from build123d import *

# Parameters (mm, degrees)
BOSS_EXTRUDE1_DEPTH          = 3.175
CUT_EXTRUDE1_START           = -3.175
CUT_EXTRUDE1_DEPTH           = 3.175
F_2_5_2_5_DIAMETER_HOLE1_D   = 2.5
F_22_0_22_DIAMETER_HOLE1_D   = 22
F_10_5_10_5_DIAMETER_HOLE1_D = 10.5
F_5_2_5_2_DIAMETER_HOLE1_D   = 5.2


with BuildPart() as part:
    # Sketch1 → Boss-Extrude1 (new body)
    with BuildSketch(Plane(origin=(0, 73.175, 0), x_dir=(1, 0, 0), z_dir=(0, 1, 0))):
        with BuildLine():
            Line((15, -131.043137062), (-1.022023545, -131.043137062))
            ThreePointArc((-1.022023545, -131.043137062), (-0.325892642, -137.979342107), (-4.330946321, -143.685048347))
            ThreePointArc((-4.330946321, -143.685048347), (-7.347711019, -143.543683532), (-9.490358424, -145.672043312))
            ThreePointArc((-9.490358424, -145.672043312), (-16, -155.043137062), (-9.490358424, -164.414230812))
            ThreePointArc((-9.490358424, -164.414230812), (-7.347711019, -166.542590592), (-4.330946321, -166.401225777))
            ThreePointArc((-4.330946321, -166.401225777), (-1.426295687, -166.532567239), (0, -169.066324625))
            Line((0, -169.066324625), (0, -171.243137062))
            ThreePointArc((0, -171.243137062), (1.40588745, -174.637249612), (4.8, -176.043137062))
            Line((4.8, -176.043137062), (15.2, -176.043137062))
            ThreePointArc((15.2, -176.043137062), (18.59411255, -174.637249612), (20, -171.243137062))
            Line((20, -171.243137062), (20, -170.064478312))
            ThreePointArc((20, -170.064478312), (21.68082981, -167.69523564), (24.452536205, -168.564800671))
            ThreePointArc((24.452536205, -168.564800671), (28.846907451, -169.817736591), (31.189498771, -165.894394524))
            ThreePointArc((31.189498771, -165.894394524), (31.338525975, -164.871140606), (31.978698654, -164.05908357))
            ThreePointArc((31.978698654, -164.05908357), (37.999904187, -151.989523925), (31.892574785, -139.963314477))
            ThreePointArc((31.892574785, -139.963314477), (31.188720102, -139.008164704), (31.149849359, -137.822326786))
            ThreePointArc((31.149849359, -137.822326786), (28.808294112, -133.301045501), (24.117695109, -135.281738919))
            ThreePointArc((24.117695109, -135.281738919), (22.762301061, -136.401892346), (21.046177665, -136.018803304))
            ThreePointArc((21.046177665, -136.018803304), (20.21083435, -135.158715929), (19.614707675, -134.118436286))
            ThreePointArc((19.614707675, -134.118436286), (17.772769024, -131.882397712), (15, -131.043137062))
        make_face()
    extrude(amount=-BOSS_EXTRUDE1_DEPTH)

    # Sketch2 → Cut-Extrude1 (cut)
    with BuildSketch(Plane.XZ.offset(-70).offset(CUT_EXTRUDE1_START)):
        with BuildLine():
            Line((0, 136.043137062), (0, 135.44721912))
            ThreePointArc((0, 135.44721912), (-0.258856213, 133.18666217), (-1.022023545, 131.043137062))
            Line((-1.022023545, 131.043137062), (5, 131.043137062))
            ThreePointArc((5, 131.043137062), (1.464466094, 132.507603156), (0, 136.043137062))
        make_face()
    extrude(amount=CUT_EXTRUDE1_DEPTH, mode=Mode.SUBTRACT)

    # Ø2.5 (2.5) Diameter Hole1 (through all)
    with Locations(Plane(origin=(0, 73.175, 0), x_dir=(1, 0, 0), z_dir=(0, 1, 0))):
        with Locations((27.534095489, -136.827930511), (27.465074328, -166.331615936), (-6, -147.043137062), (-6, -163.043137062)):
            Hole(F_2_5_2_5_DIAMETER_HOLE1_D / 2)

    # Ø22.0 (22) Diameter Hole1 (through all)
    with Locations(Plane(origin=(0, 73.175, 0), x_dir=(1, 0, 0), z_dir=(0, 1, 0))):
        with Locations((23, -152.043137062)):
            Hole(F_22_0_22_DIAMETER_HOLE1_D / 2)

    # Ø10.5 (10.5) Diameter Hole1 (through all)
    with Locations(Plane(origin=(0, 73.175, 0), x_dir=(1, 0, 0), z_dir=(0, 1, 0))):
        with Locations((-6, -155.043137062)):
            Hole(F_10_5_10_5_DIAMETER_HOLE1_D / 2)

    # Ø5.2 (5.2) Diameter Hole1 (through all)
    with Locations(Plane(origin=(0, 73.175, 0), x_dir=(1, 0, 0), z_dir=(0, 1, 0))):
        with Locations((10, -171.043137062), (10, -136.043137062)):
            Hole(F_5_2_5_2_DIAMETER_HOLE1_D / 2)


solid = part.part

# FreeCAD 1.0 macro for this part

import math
import FreeCAD as App
import Part
import Sketcher

doc = App.newDocument("Part")
body = doc.addObject("PartDesign::Body", "Body")

# Sketch on XZ plane
sketch1 = doc.addObject("Sketcher::SketchObject", "Sketch")
body.addObject(sketch1)
sketch1.AttachmentSupport = (doc.XZ_Plane, [""])
sketch1.MapMode = "FlatFace"
sketch1.AttachmentOffset = App.Placement(App.Vector(0, 0, -73.175), App.Rotation())
sketch1.addGeometry([
    Part.LineSegment(App.Vector(15, 131.043137, 0), App.Vector(-1.022024, 131.043137, 0)),  # 0
    Part.ArcOfCircle(Part.Circle(App.Vector(-10, 135.447219, 0), App.Vector(0, 0, 1), 10), math.radians(-26.129929), math.radians(55.465292)),  # 1
    Part.ArcOfCircle(Part.Circle(App.Vector(-6, 147.043137, 0), App.Vector(0, 0, 1), 3.75), math.radians(-158.553949), math.radians(-63.57148)),  # 2
    Part.ArcOfCircle(Part.Circle(App.Vector(-6, 155.043137, 0), App.Vector(0, 0, 1), 10), math.radians(110.428354), math.radians(249.571646)),  # 3
    Part.ArcOfCircle(Part.Circle(App.Vector(-6, 163.043137, 0), App.Vector(0, 0, 1), 3.75), math.radians(63.57148), math.radians(158.553949)),  # 4
    Part.ArcOfCircle(Part.Circle(App.Vector(-2.997009, 169.085071, 0), App.Vector(0, 0, 1), 2.997067), math.radians(-116.42852), math.radians(-0.358373)),  # 5
    Part.LineSegment(App.Vector(0, 169.066325, 0), App.Vector(0, 171.243137, 0)),  # 6
    Part.ArcOfCircle(Part.Circle(App.Vector(4.8, 171.243137, 0), App.Vector(0, 0, 1), 4.8), math.radians(90), math.radians(180)),  # 7
    Part.LineSegment(App.Vector(4.8, 176.043137, 0), App.Vector(15.2, 176.043137, 0)),  # 8
    Part.ArcOfCircle(Part.Circle(App.Vector(15.2, 171.243137, 0), App.Vector(0, 0, 1), 4.8), math.radians(0), math.radians(90)),  # 9
    Part.LineSegment(App.Vector(20, 171.243137, 0), App.Vector(20, 170.064478, 0)),  # 10
    Part.ArcOfCircle(Part.Circle(App.Vector(22.468968, 170.035214, 0), App.Vector(0, 0, 1), 2.469141), math.radians(179.320903), math.radians(323.45058)),  # 11
    Part.ArcOfCircle(Part.Circle(App.Vector(27.465074, 166.331616, 0), App.Vector(0, 0, 1), 3.75), math.radians(-6.695479), math.radians(143.45058)),  # 12
    Part.ArcOfCircle(Part.Circle(App.Vector(33.175858, 165.66121, 0), App.Vector(0, 0, 1), 2), math.radians(173.304521), math.radians(233.231741)),  # 13
    Part.ArcOfCircle(Part.Circle(App.Vector(23, 152.043137, 0), App.Vector(0, 0, 1), 15), math.radians(-53.641316), math.radians(53.231741)),  # 14
    Part.ArcOfCircle(Part.Circle(App.Vector(33.078251, 138.352671, 0), App.Vector(0, 0, 1), 2), math.radians(126.358684), math.radians(195.377193)),  # 15
    Part.ArcOfCircle(Part.Circle(App.Vector(27.534095, 136.827931, 0), App.Vector(0, 0, 1), 3.75), math.radians(-155.649484), math.radians(15.377194)),  # 16
    Part.ArcOfCircle(Part.Circle(App.Vector(22.295615, 134.457103, 0), App.Vector(0, 0, 1), 2), math.radians(24.350516), math.radians(128.661538)),  # 17
    Part.ArcOfCircle(Part.Circle(App.Vector(24.044827, 132.270724, 0), App.Vector(0, 0, 1), 4.8), math.radians(128.661538), math.radians(157.359975)),  # 18
    Part.ArcOfCircle(Part.Circle(App.Vector(15, 136.043137, 0), App.Vector(0, 0, 1), 5), math.radians(-90), math.radians(-22.640025)),  # 19
], False)
sketch1.addConstraint([
    Sketcher.Constraint("Coincident", 0, 2, 1, 1),
    Sketcher.Constraint("Coincident", 1, 2, 2, 2),
    Sketcher.Constraint("Coincident", 2, 1, 3, 2),
    Sketcher.Constraint("Coincident", 3, 1, 4, 2),
    Sketcher.Constraint("Tangent", 4, 1, 5, 1),
    Sketcher.Constraint("Coincident", 5, 2, 6, 1),
    Sketcher.Constraint("Tangent", 6, 2, 7, 2),
    Sketcher.Constraint("Tangent", 7, 1, 8, 1),
    Sketcher.Constraint("Tangent", 8, 2, 9, 2),
    Sketcher.Constraint("Tangent", 9, 1, 10, 1),
    Sketcher.Constraint("Coincident", 10, 2, 11, 1),
    Sketcher.Constraint("Tangent", 11, 2, 12, 2),
    Sketcher.Constraint("Tangent", 12, 1, 13, 1),
    Sketcher.Constraint("Tangent", 13, 2, 14, 2),
    Sketcher.Constraint("Tangent", 14, 1, 15, 1),
    Sketcher.Constraint("Tangent", 15, 2, 16, 2),
    Sketcher.Constraint("Tangent", 16, 1, 17, 1),
    Sketcher.Constraint("Tangent", 17, 2, 18, 1),
    Sketcher.Constraint("Tangent", 18, 2, 19, 2),
    Sketcher.Constraint("Tangent", 19, 1, 0, 1),
    Sketcher.Constraint("Horizontal", 0),
    Sketcher.Constraint("Vertical", 6),
    Sketcher.Constraint("Horizontal", 8),
    Sketcher.Constraint("Vertical", 10),
    Sketcher.Constraint("Equal", 1, 3),
    Sketcher.Constraint("Equal", 2, 4),
    Sketcher.Constraint("Equal", 7, 9),
    Sketcher.Constraint("Equal", 4, 12),
    Sketcher.Constraint("Equal", 13, 15),
    Sketcher.Constraint("Equal", 12, 16),
    Sketcher.Constraint("Equal", 15, 17),
    Sketcher.Constraint("Equal", 9, 18),
    Sketcher.Constraint("PointOnObject", 5, 2, -2),
    Sketcher.Constraint("Vertical", 2, 3, 3, 3),
    Sketcher.Constraint("Vertical", 3, 3, 4, 3),
    Sketcher.Constraint("Vertical", 2, 1, 3, 1),
    Sketcher.Constraint("Vertical", 1, 2, 4, 1),
    Sketcher.Constraint("Radius", 1, 10.0),
    Sketcher.Constraint("Radius", 13, 2.0),
    Sketcher.Constraint("Radius", 14, 15.0),
    Sketcher.Constraint("Radius", 19, 5.0),
    Sketcher.Constraint("Radius", 7, 4.8),
    Sketcher.Constraint("Radius", 2, 3.75),
    Sketcher.Constraint("DistanceX", 8, 1, 8, 2, 10.4),
    Sketcher.Constraint("DistanceX", 1, 3, -1, 1, 10.0),
    Sketcher.Constraint("DistanceX", 2, 3, -1, 1, 6.0),
    Sketcher.Constraint("DistanceX", -1, 1, 14, 3, 23.0),
    Sketcher.Constraint("DistanceX", -1, 1, 19, 3, 15.0),
    Sketcher.Constraint("DistanceY", 2, 3, 3, 3, 8.0),
    Sketcher.Constraint("DistanceY", 19, 3, 14, 3, 16.0),
    Sketcher.Constraint("DistanceY", 0, 2, 2, 3, 16.0),
    Sketcher.Constraint("DistanceY", 4, 3, 7, 3, 8.2),
    Sketcher.Constraint("Radius", 11, 2.469141),
    Sketcher.Constraint("Radius", 5, 2.997067),
    Sketcher.Constraint("DistanceY", 10, 2, 10, 1, 1.178659),
    Sketcher.Constraint("DistanceY", -1, 1, 11, 2, 168.564801),
    Sketcher.Constraint("DistanceX", -1, 1, 12, 1, 31.189499),
    Sketcher.Constraint("DistanceX", -1, 1, 13, 2, 31.978699),
    Sketcher.Constraint("DistanceY", 4, 1, 5, 2, 2.665099),
    Sketcher.Constraint("DistanceX", 16, 1, 16, 3, 3.4164),
    Sketcher.Constraint("DistanceY", 17, 3, 17, 2, 1.5617),
    Sketcher.Constraint("DistanceY", 18, 2, 19, 3, 1.924701),
])
pad1 = doc.addObject("PartDesign::Pad", "Pad")
body.addObject(pad1)
pad1.Profile = sketch1
pad1.Length = 3.175

# Sketch on XZ plane
sketch2 = doc.addObject("Sketcher::SketchObject", "Sketch001")
body.addObject(sketch2)
sketch2.AttachmentSupport = (doc.XZ_Plane, [""])
sketch2.MapMode = "FlatFace"
sketch2.AttachmentOffset = App.Placement(App.Vector(0, 0, -73.175), App.Rotation())
sketch2.addGeometry([
    Part.LineSegment(App.Vector(0, 136.043137, 0), App.Vector(0, 135.447219, 0)),
    Part.ArcOfCircle(Part.Circle(App.Vector(-10, 135.447219, 0), App.Vector(0, 0, 1), 10), math.radians(-26.129929), math.radians(0)),
    Part.LineSegment(App.Vector(-1.022024, 131.043137, 0), App.Vector(5, 131.043137, 0)),
    Part.ArcOfCircle(Part.Circle(App.Vector(5, 136.043137, 0), App.Vector(0, 0, 1), 5), math.radians(180), math.radians(270)),
], False)
sketch2.addConstraint([
    Sketcher.Constraint("Tangent", 0, 2, 1, 2),
    Sketcher.Constraint("Coincident", 1, 1, 2, 1),
    Sketcher.Constraint("Tangent", 2, 2, 3, 2),
    Sketcher.Constraint("Tangent", 3, 1, 0, 1),
    Sketcher.Constraint("Vertical", 0),
    Sketcher.Constraint("Horizontal", 2),
    Sketcher.Constraint("PointOnObject", 0, 2, -2),
    Sketcher.Constraint("Radius", 1, 10.0),
    Sketcher.Constraint("Radius", 3, 5.0),
    Sketcher.Constraint("DistanceX", 2, 1, 2, 2, 6.022024),
    Sketcher.Constraint("DistanceY", -1, 1, 1, 3, 135.447219),
])
pocket1 = doc.addObject("PartDesign::Pocket", "Pocket")
body.addObject(pocket1)
pocket1.Profile = sketch2
pocket1.Length = 3.175
pocket1.Reversed = True

# Sketch on XZ plane
sketch3 = doc.addObject("Sketcher::SketchObject", "Sketch002")
body.addObject(sketch3)
sketch3.AttachmentSupport = (doc.XZ_Plane, [""])
sketch3.MapMode = "FlatFace"
sketch3.AttachmentOffset = App.Placement(App.Vector(0, 0, -73.175), App.Rotation())
sketch3.addGeometry([
    Part.Circle(App.Vector(27.534095, 136.827931, 0), App.Vector(0, 0, 1), 1.25),
    Part.Circle(App.Vector(27.465074, 166.331616, 0), App.Vector(0, 0, 1), 1.25),
    Part.Circle(App.Vector(-6, 147.043137, 0), App.Vector(0, 0, 1), 1.25),
    Part.Circle(App.Vector(-6, 163.043137, 0), App.Vector(0, 0, 1), 1.25),
], False)
sketch3.addConstraint([
    Sketcher.Constraint("Equal", 0, 1),
    Sketcher.Constraint("Equal", 1, 2),
    Sketcher.Constraint("Equal", 2, 3),
    Sketcher.Constraint("Vertical", 2, 3, 3, 3),
    Sketcher.Constraint("Diameter", 0, 2.5),
    Sketcher.Constraint("DistanceX", 2, 3, -1, 1, 6.0),
    Sketcher.Constraint("DistanceY", 2, 3, 3, 3, 16.0),
    Sketcher.Constraint("DistanceY", -1, 1, 0, 3, 136.827931),
    Sketcher.Constraint("DistanceX", 1, 3, 0, 3, 0.069021),
    Sketcher.Constraint("DistanceY", 2, 3, 1, 3, 19.288479),
    Sketcher.Constraint("DistanceX", -1, 1, 0, 3, 27.534095),
    Sketcher.Constraint("DistanceY", -1, 1, 1, 3, 166.331616),
])
doc.recompute()
hole = doc.addObject("PartDesign::Hole", "Hole")
body.addObject(hole)
hole.Profile = sketch3
hole.ThreadType = "None"
hole.Diameter = 2.5
hole.DepthType = "ThroughAll"
hole.Reversed = True

# Sketch on XZ plane
sketch4 = doc.addObject("Sketcher::SketchObject", "Sketch003")
body.addObject(sketch4)
sketch4.AttachmentSupport = (doc.XZ_Plane, [""])
sketch4.MapMode = "FlatFace"
sketch4.AttachmentOffset = App.Placement(App.Vector(0, 0, -73.175), App.Rotation())
sketch4.addGeometry(Part.Circle(App.Vector(23, 152.043137, 0), App.Vector(0, 0, 1), 11), False)
sketch4.addConstraint([
    Sketcher.Constraint("Diameter", 0, 22.0),
    Sketcher.Constraint("DistanceX", -1, 1, 0, 3, 23.0),
    Sketcher.Constraint("DistanceY", -1, 1, 0, 3, 152.043137),
])
doc.recompute()
hole2 = doc.addObject("PartDesign::Hole", "Hole001")
body.addObject(hole2)
hole2.Profile = sketch4
hole2.ThreadType = "None"
hole2.Diameter = 22
hole2.DepthType = "ThroughAll"
hole2.Reversed = True

# Sketch on XZ plane
sketch5 = doc.addObject("Sketcher::SketchObject", "Sketch004")
body.addObject(sketch5)
sketch5.AttachmentSupport = (doc.XZ_Plane, [""])
sketch5.MapMode = "FlatFace"
sketch5.AttachmentOffset = App.Placement(App.Vector(0, 0, -73.175), App.Rotation())
sketch5.addGeometry(Part.Circle(App.Vector(-6, 155.043137, 0), App.Vector(0, 0, 1), 5.25), False)
sketch5.addConstraint([
    Sketcher.Constraint("Diameter", 0, 10.5),
    Sketcher.Constraint("DistanceX", 0, 3, -1, 1, 6.0),
    Sketcher.Constraint("DistanceY", -1, 1, 0, 3, 155.043137),
])
doc.recompute()
hole3 = doc.addObject("PartDesign::Hole", "Hole002")
body.addObject(hole3)
hole3.Profile = sketch5
hole3.ThreadType = "None"
hole3.Diameter = 10.5
hole3.DepthType = "ThroughAll"
hole3.Reversed = True

# Sketch on XZ plane
sketch6 = doc.addObject("Sketcher::SketchObject", "Sketch005")
body.addObject(sketch6)
sketch6.AttachmentSupport = (doc.XZ_Plane, [""])
sketch6.MapMode = "FlatFace"
sketch6.AttachmentOffset = App.Placement(App.Vector(0, 0, -73.175), App.Rotation())
sketch6.addGeometry([
    Part.Circle(App.Vector(10, 171.043137, 0), App.Vector(0, 0, 1), 2.6),
    Part.Circle(App.Vector(10, 136.043137, 0), App.Vector(0, 0, 1), 2.6),
], False)
sketch6.addConstraint([
    Sketcher.Constraint("Equal", 0, 1),
    Sketcher.Constraint("Vertical", 0, 3, 1, 3),
    Sketcher.Constraint("Diameter", 0, 5.2),
    Sketcher.Constraint("DistanceX", -1, 1, 0, 3, 10.0),
    Sketcher.Constraint("DistanceY", 1, 3, 0, 3, 35.0),
    Sketcher.Constraint("DistanceY", -1, 1, 0, 3, 171.043137),
])
doc.recompute()
hole4 = doc.addObject("PartDesign::Hole", "Hole003")
body.addObject(hole4)
hole4.Profile = sketch6
hole4.ThreadType = "None"
hole4.Diameter = 5.2
hole4.DepthType = "ThroughAll"
hole4.Reversed = True

doc.recompute()
